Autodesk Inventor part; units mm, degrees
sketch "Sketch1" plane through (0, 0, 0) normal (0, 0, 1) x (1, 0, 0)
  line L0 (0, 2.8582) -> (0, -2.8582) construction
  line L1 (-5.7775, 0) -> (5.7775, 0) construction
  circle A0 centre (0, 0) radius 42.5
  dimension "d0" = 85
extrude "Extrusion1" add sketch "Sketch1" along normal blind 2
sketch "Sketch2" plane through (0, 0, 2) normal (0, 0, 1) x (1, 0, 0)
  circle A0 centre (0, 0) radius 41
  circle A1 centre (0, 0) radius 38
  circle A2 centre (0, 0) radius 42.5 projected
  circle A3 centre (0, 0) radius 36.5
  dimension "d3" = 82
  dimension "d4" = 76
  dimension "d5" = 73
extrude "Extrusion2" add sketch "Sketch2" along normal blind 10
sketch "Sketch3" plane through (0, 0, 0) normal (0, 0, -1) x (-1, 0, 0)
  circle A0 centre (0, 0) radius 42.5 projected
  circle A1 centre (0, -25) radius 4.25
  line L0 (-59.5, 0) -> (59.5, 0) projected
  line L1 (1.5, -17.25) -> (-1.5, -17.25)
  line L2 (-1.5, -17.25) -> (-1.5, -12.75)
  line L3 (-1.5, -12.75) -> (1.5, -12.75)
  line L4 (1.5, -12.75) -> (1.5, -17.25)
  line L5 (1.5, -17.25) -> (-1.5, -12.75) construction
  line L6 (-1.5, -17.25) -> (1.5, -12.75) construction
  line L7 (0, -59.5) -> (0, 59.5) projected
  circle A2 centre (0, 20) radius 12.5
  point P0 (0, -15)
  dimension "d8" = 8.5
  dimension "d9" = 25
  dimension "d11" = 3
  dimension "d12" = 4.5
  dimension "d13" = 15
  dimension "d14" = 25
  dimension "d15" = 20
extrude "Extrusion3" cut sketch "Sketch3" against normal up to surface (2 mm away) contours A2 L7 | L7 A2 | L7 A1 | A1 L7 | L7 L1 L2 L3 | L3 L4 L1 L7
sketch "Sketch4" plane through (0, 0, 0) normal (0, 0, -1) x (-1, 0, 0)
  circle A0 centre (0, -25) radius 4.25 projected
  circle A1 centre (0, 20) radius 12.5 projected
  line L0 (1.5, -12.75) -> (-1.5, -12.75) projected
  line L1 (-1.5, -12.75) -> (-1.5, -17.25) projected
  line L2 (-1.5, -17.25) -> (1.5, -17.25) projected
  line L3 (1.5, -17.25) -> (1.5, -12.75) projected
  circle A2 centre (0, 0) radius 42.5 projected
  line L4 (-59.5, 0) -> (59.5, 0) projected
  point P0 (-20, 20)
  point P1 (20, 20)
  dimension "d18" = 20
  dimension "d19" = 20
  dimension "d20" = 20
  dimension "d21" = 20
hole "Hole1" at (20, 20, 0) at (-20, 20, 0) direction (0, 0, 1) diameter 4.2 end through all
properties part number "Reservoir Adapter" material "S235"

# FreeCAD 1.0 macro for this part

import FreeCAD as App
import Part
import Sketcher
Q = App.Units.Quantity


def add_polygon(sketch, points):
    """Adds a closed chain of lines whose ends are joined by coincident constraints."""
    first, n = sketch.GeometryCount, len(points)
    for a, b in zip(points, points[1:] + points[:1]):
        sketch.addGeometry(Part.LineSegment(App.Vector(*a, 0), App.Vector(*b, 0)), False)
    for i in range(n):
        sketch.addConstraint(Sketcher.Constraint("Coincident", first + i, 2, first + (i + 1) % n, 1))

doc = App.newDocument("Part")
params = doc.addObject("Spreadsheet::Sheet", "Params")
for row, (alias, value) in enumerate([
    ("sketch1_diameter", "85 mm"),
    ("pad1_length", "2 mm"),
    ("sketch2_diameter", "76 mm"),
    ("sketch2_diameter2", "73 mm"),
    ("sketch2_diameter3", "82 mm"),
    ("sketch2_diameter4", "85 mm"),
    ("pad2_length", "10 mm"),
    ("sketch3_diameter", "25 mm"),
    ("sketch3_diameter2", "8.5 mm"),
    ("sketch3_width", "3 mm"),
    ("sketch3_height", "4.5 mm"),
    ("pocket1_length", "2 mm"),
    ("sketch4_diameter", "4.2 mm"),
    ("hole_diameter", "4.2 mm"),
], start=1):
    params.set(f"A{row}", alias)
    params.set(f"B{row}", "=" + value)
    params.setAlias(f"B{row}", alias)

body = doc.addObject("PartDesign::Body", "Body")

# Sketch on XY plane
sketch1 = body.newObject("Sketcher::SketchObject", "Sketch")
sketch1.AttachmentSupport = (doc.getObject("XY_Plane"), [""])
sketch1.MapMode = "FlatFace"
sketch1.addGeometry(Part.Circle(App.Vector(0, 0, 0), App.Vector(0, 0, 1), 42), False)
sketch1.addConstraint([
    Sketcher.Constraint("Coincident", 0, 3, -1, 1),
    Sketcher.Constraint("Diameter", 0, Q("85 mm")),
])
sketch1.setExpression("Constraints[1]", "Params.sketch1_diameter")
pad1 = body.newObject("PartDesign::Pad", "Pad")
pad1.Profile = sketch1
pad1.setExpression("Length", "Params.pad1_length")

# Sketch on XY plane
sketch2 = body.newObject("Sketcher::SketchObject", "Sketch001")
sketch2.AttachmentSupport = (doc.getObject("XY_Plane"), [""])
sketch2.MapMode = "FlatFace"
sketch2.AttachmentOffset = App.Placement(App.Vector(0, 0, 2), App.Rotation())
sketch2.addGeometry([
    Part.Circle(App.Vector(0, 0, 0), App.Vector(0, 0, 1), 38),
    Part.Circle(App.Vector(0, 0, 0), App.Vector(0, 0, 1), 36),
    Part.Circle(App.Vector(0, 0, 0), App.Vector(0, 0, 1), 42),
    Part.Circle(App.Vector(0, 0, 0), App.Vector(0, 0, 1), 41),
], False)
sketch2.addConstraint([
    Sketcher.Constraint("Coincident", 0, 3, -1, 1),
    Sketcher.Constraint("Coincident", 1, 3, -1, 1),
    Sketcher.Constraint("Coincident", 2, 3, -1, 1),
    Sketcher.Constraint("Coincident", 3, 3, -1, 1),
    Sketcher.Constraint("Diameter", 0, Q("76 mm")),
    Sketcher.Constraint("Diameter", 1, Q("73 mm")),
    Sketcher.Constraint("Diameter", 3, Q("82 mm")),
    Sketcher.Constraint("Diameter", 2, Q("85 mm")),
])
sketch2.setExpression("Constraints[4]", "Params.sketch2_diameter")
sketch2.setExpression("Constraints[5]", "Params.sketch2_diameter2")
sketch2.setExpression("Constraints[6]", "Params.sketch2_diameter3")
sketch2.setExpression("Constraints[7]", "Params.sketch2_diameter4")
pad2 = body.newObject("PartDesign::Pad", "Pad001")
pad2.Profile = sketch2
pad2.setExpression("Length", "Params.pad2_length")

# Sketch on XY plane
sketch3 = body.newObject("Sketcher::SketchObject", "Sketch002")
sketch3.AttachmentSupport = (doc.getObject("XY_Plane"), [""])
sketch3.MapMode = "FlatFace"
sketch3.addGeometry(Part.Circle(App.Vector(0, 20, 0), App.Vector(0, 0, 1), 12.5), False)  # 0
sketch3.addGeometry(Part.Circle(App.Vector(0, -25, 0), App.Vector(0, 0, 1), 4.2), False)  # 1
add_polygon(sketch3, [(1.5, -17.2), (-1.5, -17.2), (-1.5, -12.8), (1.5, -12.8)])  # lines 2-5
sketch3.addConstraint([
    Sketcher.Constraint("Horizontal", 2),
    Sketcher.Constraint("Vertical", 3),
    Sketcher.Constraint("Horizontal", 4),
    Sketcher.Constraint("Vertical", 5),
    Sketcher.Constraint("PointOnObject", 0, 3, -2),
    Sketcher.Constraint("PointOnObject", 1, 3, -2),
    Sketcher.Constraint("Diameter", 0, Q("25 mm")),
    Sketcher.Constraint("Diameter", 1, Q("8.5 mm")),
    Sketcher.Constraint("DistanceX", 2, 2, 2, 1, Q("3 mm")),
    Sketcher.Constraint("DistanceY", 3, 1, 3, 2, Q("4.5 mm")),
    Sketcher.Constraint("DistanceY", -1, 1, 0, 3, Q("20 mm")),
    Sketcher.Constraint("DistanceY", 1, 3, -1, 1, Q("25 mm")),
    Sketcher.Constraint("DistanceX", 2, 2, -1, 1, Q("1.5 mm")),
    Sketcher.Constraint("DistanceY", 2, 2, -1, 1, Q("17.25 mm")),
])
sketch3.setExpression("Constraints[10]", "Params.sketch3_diameter")
sketch3.setExpression("Constraints[11]", "Params.sketch3_diameter2")
sketch3.setExpression("Constraints[12]", "Params.sketch3_width")
sketch3.setExpression("Constraints[13]", "Params.sketch3_height")
pocket1 = body.newObject("PartDesign::Pocket", "Pocket")
pocket1.Profile = sketch3
pocket1.setExpression("Length", "Params.pocket1_length")
pocket1.Reversed = True

# Sketch on XY plane
sketch4 = body.newObject("Sketcher::SketchObject", "Sketch003")
sketch4.AttachmentSupport = (doc.getObject("XY_Plane"), [""])
sketch4.MapMode = "FlatFace"
sketch4.addGeometry([
    Part.Circle(App.Vector(20, 20, 0), App.Vector(0, 0, 1), 2.1),
    Part.Circle(App.Vector(-20, 20, 0), App.Vector(0, 0, 1), 2.1),
], False)
sketch4.addConstraint([
    Sketcher.Constraint("Equal", 0, 1),
    Sketcher.Constraint("Symmetric", 0, 3, 1, 3, -2),
    Sketcher.Constraint("Diameter", 0, Q("4.2 mm")),
    Sketcher.Constraint("DistanceX", -1, 1, 0, 3, Q("20 mm")),
    Sketcher.Constraint("DistanceY", -1, 1, 0, 3, Q("20 mm")),
])
sketch4.setExpression("Constraints[2]", "Params.sketch4_diameter")
doc.recompute()
hole = body.newObject("PartDesign::Hole", "Hole")
hole.Profile = sketch4
hole.ThreadType = "None"
hole.setExpression("Diameter", "Params.hole_diameter")
hole.DepthType = "ThroughAll"
hole.Reversed = True

doc.recompute()
